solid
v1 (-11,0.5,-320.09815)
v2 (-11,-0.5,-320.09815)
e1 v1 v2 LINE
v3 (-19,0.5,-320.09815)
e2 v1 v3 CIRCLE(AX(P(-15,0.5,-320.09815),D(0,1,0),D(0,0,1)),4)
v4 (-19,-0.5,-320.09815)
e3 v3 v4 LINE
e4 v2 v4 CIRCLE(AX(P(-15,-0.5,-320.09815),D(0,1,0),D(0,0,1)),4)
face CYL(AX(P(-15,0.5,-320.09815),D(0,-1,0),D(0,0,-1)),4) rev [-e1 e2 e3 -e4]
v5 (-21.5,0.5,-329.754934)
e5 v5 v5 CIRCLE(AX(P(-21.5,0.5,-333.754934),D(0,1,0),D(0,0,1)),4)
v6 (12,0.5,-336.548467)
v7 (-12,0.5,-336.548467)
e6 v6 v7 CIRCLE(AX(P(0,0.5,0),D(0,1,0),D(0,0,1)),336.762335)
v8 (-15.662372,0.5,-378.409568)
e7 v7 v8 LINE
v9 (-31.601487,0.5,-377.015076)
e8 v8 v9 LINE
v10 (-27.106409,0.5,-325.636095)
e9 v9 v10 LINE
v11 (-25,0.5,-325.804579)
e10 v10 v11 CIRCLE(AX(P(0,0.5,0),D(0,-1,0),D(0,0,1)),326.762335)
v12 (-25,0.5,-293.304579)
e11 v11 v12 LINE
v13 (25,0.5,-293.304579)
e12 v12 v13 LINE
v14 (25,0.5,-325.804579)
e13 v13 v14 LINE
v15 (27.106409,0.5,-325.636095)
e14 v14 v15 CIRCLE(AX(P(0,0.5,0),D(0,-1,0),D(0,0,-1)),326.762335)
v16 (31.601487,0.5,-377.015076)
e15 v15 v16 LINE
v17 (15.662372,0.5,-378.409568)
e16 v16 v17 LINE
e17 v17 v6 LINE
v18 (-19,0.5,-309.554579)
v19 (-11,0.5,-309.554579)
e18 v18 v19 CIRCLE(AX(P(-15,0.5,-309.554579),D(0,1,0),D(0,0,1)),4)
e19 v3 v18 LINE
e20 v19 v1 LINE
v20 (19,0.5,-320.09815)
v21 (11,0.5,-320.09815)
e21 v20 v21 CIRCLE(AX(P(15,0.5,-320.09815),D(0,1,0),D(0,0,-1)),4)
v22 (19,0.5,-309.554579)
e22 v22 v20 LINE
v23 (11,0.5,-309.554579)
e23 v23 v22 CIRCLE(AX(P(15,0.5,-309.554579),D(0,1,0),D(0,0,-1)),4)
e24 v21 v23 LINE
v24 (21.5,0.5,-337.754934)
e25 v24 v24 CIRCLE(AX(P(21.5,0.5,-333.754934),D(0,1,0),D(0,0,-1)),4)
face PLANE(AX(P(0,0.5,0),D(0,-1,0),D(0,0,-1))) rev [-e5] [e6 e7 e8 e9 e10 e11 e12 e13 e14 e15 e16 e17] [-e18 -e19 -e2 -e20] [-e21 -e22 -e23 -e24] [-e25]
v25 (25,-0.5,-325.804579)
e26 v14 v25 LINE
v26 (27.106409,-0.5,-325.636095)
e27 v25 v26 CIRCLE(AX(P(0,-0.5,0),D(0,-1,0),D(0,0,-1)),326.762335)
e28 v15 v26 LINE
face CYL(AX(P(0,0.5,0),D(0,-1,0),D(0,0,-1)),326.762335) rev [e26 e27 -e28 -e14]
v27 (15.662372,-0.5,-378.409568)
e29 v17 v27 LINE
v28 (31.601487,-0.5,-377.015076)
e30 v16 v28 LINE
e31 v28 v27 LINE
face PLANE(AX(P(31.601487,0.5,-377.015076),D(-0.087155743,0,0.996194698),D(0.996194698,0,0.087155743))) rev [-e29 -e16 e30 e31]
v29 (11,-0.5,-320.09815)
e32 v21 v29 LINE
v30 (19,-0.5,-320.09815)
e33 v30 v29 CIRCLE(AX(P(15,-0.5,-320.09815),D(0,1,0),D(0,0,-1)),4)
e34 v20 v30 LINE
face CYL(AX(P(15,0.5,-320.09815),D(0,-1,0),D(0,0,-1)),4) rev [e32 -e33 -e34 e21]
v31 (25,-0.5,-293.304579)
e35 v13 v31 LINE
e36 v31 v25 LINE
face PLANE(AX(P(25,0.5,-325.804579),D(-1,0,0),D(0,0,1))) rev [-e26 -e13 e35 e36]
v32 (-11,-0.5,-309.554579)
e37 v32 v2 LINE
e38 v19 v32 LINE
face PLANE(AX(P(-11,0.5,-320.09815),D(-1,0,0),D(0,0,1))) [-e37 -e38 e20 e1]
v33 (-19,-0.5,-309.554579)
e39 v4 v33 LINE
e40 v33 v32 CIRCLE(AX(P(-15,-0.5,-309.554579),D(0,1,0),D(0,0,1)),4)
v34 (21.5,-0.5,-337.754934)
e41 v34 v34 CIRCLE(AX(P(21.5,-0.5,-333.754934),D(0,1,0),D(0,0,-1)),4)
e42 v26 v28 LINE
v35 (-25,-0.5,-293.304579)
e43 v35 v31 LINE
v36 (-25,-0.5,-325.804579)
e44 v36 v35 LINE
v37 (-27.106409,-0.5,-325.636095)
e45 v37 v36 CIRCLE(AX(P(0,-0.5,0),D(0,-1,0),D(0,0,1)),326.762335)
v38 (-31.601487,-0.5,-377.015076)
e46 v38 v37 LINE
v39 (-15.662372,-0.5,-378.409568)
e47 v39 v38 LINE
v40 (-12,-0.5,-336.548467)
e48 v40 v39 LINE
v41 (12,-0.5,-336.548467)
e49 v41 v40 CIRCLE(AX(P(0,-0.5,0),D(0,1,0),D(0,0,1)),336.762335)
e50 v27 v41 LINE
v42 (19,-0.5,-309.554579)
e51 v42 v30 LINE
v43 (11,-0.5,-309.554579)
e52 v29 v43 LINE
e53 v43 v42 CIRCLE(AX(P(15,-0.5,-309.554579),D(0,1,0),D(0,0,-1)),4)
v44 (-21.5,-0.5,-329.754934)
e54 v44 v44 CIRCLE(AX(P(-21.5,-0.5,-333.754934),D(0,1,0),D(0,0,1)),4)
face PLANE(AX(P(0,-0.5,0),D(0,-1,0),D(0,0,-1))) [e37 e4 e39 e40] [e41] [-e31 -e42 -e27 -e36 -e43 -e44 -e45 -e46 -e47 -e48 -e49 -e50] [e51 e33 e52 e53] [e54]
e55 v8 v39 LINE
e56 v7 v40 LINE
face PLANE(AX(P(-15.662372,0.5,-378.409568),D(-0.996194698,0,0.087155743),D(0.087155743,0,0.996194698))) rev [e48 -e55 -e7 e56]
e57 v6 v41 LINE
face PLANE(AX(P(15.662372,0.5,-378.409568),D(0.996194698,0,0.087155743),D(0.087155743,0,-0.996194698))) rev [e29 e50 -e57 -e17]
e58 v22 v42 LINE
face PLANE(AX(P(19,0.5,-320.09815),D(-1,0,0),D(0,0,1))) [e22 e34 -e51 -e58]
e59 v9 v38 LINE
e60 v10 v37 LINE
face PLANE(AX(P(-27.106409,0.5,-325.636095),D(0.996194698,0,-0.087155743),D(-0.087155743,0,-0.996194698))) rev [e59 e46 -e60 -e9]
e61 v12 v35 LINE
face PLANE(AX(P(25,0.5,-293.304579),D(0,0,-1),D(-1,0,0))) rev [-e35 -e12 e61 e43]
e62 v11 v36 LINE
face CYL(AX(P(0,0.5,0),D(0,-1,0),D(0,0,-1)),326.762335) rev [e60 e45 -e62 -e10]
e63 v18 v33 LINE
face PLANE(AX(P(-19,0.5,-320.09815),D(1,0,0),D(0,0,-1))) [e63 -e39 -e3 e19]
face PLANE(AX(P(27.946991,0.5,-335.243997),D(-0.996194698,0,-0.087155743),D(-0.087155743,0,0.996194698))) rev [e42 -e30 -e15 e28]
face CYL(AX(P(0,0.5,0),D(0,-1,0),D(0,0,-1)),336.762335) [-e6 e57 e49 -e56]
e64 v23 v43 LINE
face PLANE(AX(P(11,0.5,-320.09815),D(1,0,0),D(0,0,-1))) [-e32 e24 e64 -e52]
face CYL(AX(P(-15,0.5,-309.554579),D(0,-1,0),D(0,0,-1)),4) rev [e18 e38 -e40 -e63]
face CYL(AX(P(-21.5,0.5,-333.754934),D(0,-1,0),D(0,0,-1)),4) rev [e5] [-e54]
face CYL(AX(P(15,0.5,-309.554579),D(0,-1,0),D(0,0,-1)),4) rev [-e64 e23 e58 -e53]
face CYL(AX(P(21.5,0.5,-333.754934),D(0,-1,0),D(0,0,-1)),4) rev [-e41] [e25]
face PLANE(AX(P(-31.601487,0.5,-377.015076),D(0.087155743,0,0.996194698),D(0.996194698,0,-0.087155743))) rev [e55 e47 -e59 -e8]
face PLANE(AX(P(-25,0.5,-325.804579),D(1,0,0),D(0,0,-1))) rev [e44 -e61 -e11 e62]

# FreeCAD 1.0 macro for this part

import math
import FreeCAD as App
import Part
import Sketcher
Q = App.Units.Quantity

doc = App.newDocument("Part")
body = doc.addObject("PartDesign::Body", "Body")

# Sketch on XZ plane
sketch1 = body.newObject("Sketcher::SketchObject", "Sketch")
sketch1.AttachmentSupport = (doc.getObject("XZ_Plane"), [""])
sketch1.MapMode = "FlatFace"
sketch1.addGeometry([
    Part.LineSegment(App.Vector(25, -293.304579, 0), App.Vector(25, -325.804579, 0)),  # 0
    Part.ArcOfCircle(Part.Circle(App.Vector(-0.000008, 0.000102, 0), App.Vector(0, 0, 1), 326.762438), math.radians(-85.612115), math.radians(-85.241589)),  # 1
    Part.LineSegment(App.Vector(27.106409, -325.636095, 0), App.Vector(27.946991, -335.243997, 0)),  # 2
    Part.LineSegment(App.Vector(27.946991, -335.243997, 0), App.Vector(31.601487, -377.015076, 0)),  # 3
    Part.LineSegment(App.Vector(31.601487, -377.015076, 0), App.Vector(15.662372, -378.409568, 0)),  # 4
    Part.LineSegment(App.Vector(15.662372, -378.409568, 0), App.Vector(12, -336.548467, 0)),  # 5
    Part.ArcOfCircle(Part.Circle(App.Vector(0, 0.000001, 0), App.Vector(0, 0, 1), 336.762336), math.radians(-92.042078), math.radians(-87.957922)),  # 6
    Part.LineSegment(App.Vector(-12, -336.548467, 0), App.Vector(-15.662372, -378.409568, 0)),  # 7
    Part.LineSegment(App.Vector(-15.662372, -378.409568, 0), App.Vector(-31.601487, -377.015076, 0)),  # 8
    Part.LineSegment(App.Vector(-31.601487, -377.015076, 0), App.Vector(-27.946991, -335.243997, 0)),  # 9
    Part.LineSegment(App.Vector(-27.946991, -335.243997, 0), App.Vector(-27.106409, -325.636095, 0)),  # 10
    Part.ArcOfCircle(Part.Circle(App.Vector(0.000008, 0.000102, 0), App.Vector(0, 0, 1), 326.762438), math.radians(-94.758411), math.radians(-94.387885)),  # 11
    Part.LineSegment(App.Vector(-25, -325.804579, 0), App.Vector(-25, -293.304579, 0)),  # 12
    Part.LineSegment(App.Vector(-25, -293.304579, 0), App.Vector(25, -293.304579, 0)),  # 13
    Part.LineSegment(App.Vector(19, -320.09815, 0), App.Vector(19, -309.554579, 0)),  # 14
    Part.ArcOfCircle(Part.Circle(App.Vector(15, -309.554579, 0), App.Vector(0, 0, 1), 4), math.radians(0), math.radians(180)),  # 15
    Part.LineSegment(App.Vector(11, -309.554579, 0), App.Vector(11, -320.09815, 0)),  # 16
    Part.ArcOfCircle(Part.Circle(App.Vector(15, -320.09815, 0), App.Vector(0, 0, 1), 4), math.radians(180), math.radians(360)),  # 17
    Part.ArcOfCircle(Part.Circle(App.Vector(-15, -320.09815, 0), App.Vector(0, 0, 1), 4), math.radians(180), math.radians(360)),  # 18
    Part.LineSegment(App.Vector(-11, -320.09815, 0), App.Vector(-11, -309.554579, 0)),  # 19
    Part.ArcOfCircle(Part.Circle(App.Vector(-15, -309.554579, 0), App.Vector(0, 0, 1), 4), math.radians(0), math.radians(180)),  # 20
    Part.LineSegment(App.Vector(-19, -309.554579, 0), App.Vector(-19, -320.09815, 0)),  # 21
    Part.Circle(App.Vector(21.5, -333.754934, 0), App.Vector(0, 0, 1), 4),  # 22
    Part.Circle(App.Vector(-21.5, -333.754934, 0), App.Vector(0, 0, 1), 4),  # 23
], False)
sketch1.addConstraint([
    Sketcher.Constraint("Coincident", 0, 2, 1, 1),
    Sketcher.Constraint("Coincident", 1, 2, 2, 1),
    Sketcher.Constraint("Coincident", 2, 2, 3, 1),
    Sketcher.Constraint("Coincident", 3, 2, 4, 1),
    Sketcher.Constraint("Coincident", 4, 2, 5, 1),
    Sketcher.Constraint("Coincident", 5, 2, 6, 2),
    Sketcher.Constraint("Coincident", 6, 1, 7, 1),
    Sketcher.Constraint("Coincident", 7, 2, 8, 1),
    Sketcher.Constraint("Coincident", 8, 2, 9, 1),
    Sketcher.Constraint("Coincident", 9, 2, 10, 1),
    Sketcher.Constraint("Coincident", 10, 2, 11, 1),
    Sketcher.Constraint("Coincident", 11, 2, 12, 1),
    Sketcher.Constraint("Coincident", 12, 2, 13, 1),
    Sketcher.Constraint("Coincident", 13, 2, 0, 1),
    Sketcher.Constraint("Tangent", 14, 2, 15, 1),
    Sketcher.Constraint("Tangent", 15, 2, 16, 1),
    Sketcher.Constraint("Tangent", 16, 2, 17, 1),
    Sketcher.Constraint("Tangent", 17, 2, 14, 1),
    Sketcher.Constraint("Tangent", 18, 2, 19, 1),
    Sketcher.Constraint("Tangent", 19, 2, 20, 1),
    Sketcher.Constraint("Tangent", 20, 2, 21, 1),
    Sketcher.Constraint("Tangent", 21, 2, 18, 1),
    Sketcher.Constraint("Vertical", 0),
    Sketcher.Constraint("Vertical", 12),
    Sketcher.Constraint("Horizontal", 13),
    Sketcher.Constraint("Vertical", 14),
    Sketcher.Constraint("Vertical", 16),
    Sketcher.Constraint("Vertical", 19),
    Sketcher.Constraint("Vertical", 21),
    Sketcher.Constraint("Coincident", 6, 3, -1, 1),
    Sketcher.Constraint("Equal", 1, 11),
    Sketcher.Constraint("Equal", 17, 18),
    Sketcher.Constraint("Equal", 20, 22),
    Sketcher.Constraint("Equal", 22, 23),
    Sketcher.Constraint("Symmetric", 1, 3, 11, 3, -2),
    Sketcher.Constraint("Symmetric", 17, 3, 18, 3, -2),
    Sketcher.Constraint("Symmetric", 22, 3, 23, 3, -2),
    Sketcher.Constraint("Symmetric", 4, 2, 7, 2, -2),
    Sketcher.Constraint("Symmetric", 3, 2, 8, 2, -2),
    Sketcher.Constraint("Symmetric", 2, 2, 9, 2, -2),
    Sketcher.Constraint("Parallel", 2, 3),
    Sketcher.Constraint("Perpendicular", 3, 4),
    Sketcher.Constraint("Perpendicular", 4, 5),
    Sketcher.Constraint("Perpendicular", 7, 8),
    Sketcher.Constraint("Parallel", 9, 10),
    Sketcher.Constraint("Horizontal", 15, 3, 20, 3),
    Sketcher.Constraint("Horizontal", 0, 2, 11, 2),
    Sketcher.Constraint("Diameter", 22, Q("8 mm")),
    Sketcher.Constraint("DistanceX", 13, 1, 13, 2, Q("50 mm")),
    Sketcher.Constraint("Angle", 2, Q("-85 deg")),
    Sketcher.Constraint("Distance", 4, Q("16 mm")),
    Sketcher.Constraint("DistanceY", 0, 2, 0, 1, Q("32.5 mm")),
    Sketcher.Constraint("DistanceX", -1, 1, 15, 3, Q("15 mm")),
    Sketcher.Constraint("DistanceX", -1, 1, 5, 2, Q("12 mm")),
    Sketcher.Constraint("DistanceX", 23, 3, 22, 3, Q("43 mm")),
    Sketcher.Constraint("DistanceY", 0, 2, 15, 3, Q("16.25 mm")),
    Sketcher.Constraint("Radius", 1, Q("326.762438 mm")),
    Sketcher.Constraint("Radius", 6, Q("336.762336 mm")),
    Sketcher.Constraint("DistanceY", 14, 1, 14, 2, Q("10.543571 mm")),
    Sketcher.Constraint("DistanceY", 6, 3, 1, 3, Q("0.000101 mm")),
    Sketcher.Constraint("DistanceY", 2, 2, 1, 2, Q("9.607902 mm")),
    Sketcher.Constraint("DistanceY", 7, 2, 6, 1, Q("41.861101 mm")),
    Sketcher.Constraint("Distance", 3, Q("41.930638 mm")),
    Sketcher.Constraint("DistanceY", 22, 3, 1, 2, Q("8.11884 mm")),
])
pad1 = body.newObject("PartDesign::Pad", "Pad")
pad1.Profile = sketch1
pad1.Length = 1
pad1.Midplane = True

doc.recompute()
